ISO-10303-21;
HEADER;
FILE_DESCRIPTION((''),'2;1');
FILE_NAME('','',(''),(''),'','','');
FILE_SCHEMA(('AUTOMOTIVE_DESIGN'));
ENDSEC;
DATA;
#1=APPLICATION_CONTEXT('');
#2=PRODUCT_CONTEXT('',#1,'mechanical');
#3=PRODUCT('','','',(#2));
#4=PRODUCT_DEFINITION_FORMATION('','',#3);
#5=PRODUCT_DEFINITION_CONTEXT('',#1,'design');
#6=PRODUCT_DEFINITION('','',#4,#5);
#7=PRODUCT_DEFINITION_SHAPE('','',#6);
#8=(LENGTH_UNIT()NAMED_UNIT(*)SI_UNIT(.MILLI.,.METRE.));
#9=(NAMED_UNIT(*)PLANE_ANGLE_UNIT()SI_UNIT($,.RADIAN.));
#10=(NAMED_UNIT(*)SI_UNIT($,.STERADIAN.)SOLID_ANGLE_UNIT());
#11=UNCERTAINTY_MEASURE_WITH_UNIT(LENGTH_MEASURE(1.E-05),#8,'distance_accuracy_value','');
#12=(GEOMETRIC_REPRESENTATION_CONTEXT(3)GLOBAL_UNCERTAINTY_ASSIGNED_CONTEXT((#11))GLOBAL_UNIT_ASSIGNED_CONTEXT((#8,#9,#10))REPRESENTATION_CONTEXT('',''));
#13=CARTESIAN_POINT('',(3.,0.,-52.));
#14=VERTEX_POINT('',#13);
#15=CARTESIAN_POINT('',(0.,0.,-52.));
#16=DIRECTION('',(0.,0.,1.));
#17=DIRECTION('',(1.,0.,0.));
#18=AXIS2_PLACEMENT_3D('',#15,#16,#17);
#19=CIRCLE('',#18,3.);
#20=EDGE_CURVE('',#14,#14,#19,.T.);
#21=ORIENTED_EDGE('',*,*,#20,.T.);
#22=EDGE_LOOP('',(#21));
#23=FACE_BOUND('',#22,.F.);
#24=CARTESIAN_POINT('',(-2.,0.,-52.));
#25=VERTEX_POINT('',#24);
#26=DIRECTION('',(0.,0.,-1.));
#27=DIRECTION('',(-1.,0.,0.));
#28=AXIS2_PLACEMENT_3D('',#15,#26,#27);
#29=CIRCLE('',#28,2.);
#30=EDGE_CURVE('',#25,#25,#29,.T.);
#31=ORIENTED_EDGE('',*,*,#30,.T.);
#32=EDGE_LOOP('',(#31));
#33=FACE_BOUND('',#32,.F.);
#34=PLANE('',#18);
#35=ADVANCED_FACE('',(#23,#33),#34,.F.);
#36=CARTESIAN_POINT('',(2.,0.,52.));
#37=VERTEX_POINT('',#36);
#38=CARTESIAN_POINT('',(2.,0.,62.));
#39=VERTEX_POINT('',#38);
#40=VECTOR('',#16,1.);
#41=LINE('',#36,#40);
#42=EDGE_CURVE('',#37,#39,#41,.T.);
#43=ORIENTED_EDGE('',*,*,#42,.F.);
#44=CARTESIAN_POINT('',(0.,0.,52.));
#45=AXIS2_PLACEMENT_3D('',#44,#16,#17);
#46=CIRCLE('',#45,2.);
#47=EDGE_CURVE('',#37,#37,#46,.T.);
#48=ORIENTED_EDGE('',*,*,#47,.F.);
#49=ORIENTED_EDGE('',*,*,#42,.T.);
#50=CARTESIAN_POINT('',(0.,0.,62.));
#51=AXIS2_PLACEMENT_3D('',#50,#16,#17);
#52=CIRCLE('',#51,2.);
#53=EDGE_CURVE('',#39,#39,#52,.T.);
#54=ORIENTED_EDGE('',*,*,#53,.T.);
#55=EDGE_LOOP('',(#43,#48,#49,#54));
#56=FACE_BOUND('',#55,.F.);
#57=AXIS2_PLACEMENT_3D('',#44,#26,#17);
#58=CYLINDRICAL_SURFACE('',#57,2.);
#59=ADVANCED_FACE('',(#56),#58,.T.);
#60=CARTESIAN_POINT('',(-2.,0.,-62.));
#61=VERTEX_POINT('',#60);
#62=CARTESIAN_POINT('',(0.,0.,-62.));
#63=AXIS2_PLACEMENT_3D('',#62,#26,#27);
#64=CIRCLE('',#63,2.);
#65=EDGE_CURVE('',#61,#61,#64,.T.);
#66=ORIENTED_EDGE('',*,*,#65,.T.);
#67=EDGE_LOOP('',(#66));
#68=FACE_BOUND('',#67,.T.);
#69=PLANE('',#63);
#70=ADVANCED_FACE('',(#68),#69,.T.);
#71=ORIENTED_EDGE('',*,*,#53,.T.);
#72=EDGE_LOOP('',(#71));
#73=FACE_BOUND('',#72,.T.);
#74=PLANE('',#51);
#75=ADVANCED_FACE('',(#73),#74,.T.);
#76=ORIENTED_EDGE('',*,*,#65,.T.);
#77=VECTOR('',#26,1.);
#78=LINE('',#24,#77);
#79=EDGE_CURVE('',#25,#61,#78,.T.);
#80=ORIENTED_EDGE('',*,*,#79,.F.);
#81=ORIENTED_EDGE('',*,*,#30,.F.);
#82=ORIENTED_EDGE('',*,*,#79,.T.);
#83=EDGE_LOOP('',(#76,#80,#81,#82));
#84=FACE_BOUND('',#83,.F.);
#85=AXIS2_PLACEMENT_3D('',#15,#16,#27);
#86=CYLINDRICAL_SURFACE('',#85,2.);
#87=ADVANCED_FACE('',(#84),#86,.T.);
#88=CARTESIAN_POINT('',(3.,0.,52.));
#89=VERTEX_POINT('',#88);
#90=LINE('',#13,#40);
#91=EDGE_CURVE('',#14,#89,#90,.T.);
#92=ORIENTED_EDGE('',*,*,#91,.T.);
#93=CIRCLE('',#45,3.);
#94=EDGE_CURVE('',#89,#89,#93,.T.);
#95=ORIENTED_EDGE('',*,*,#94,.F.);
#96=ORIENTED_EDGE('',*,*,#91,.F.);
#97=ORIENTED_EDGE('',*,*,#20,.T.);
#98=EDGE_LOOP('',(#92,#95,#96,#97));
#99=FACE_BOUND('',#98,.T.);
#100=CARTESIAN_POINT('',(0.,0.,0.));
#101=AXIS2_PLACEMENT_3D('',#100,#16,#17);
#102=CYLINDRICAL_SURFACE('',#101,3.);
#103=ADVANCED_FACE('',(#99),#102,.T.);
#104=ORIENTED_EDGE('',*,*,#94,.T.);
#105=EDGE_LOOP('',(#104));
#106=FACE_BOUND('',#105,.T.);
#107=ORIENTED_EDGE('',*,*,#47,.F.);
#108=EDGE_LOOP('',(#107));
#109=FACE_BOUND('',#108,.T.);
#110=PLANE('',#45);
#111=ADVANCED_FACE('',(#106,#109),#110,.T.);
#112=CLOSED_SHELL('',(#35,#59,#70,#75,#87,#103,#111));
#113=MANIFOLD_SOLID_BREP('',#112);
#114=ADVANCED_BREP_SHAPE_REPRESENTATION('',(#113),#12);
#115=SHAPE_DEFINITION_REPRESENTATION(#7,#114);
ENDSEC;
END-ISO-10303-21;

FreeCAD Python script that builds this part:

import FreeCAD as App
import Part
import Sketcher
from FreeCAD import Vector
Q = App.Units.Quantity

doc = App.newDocument("Part")
body = doc.addObject("PartDesign::Body", "Body")

# Sketch on XY plane
sketch1 = body.newObject("Sketcher::SketchObject", "Sketch")
sketch1.AttachmentSupport = (doc.getObject("XY_Plane"), [""])
sketch1.MapMode = "FlatFace"
sketch1.addGeometry(Part.Circle(Vector(0, 0, 0), Vector(0, 0, 1), 3), False)
sketch1.addConstraint([
    Sketcher.Constraint("Coincident", 0, 3, -1, 1),
    Sketcher.Constraint("Diameter", 0, Q("6 mm")),
])
pad1 = body.newObject("PartDesign::Pad", "Pad")
pad1.Profile = sketch1
pad1.Length = 104
pad1.Midplane = True

# Sketch on XY plane
sketch2 = body.newObject("Sketcher::SketchObject", "Sketch001")
sketch2.AttachmentSupport = (doc.getObject("XY_Plane"), [""])
sketch2.MapMode = "FlatFace"
sketch2.AttachmentOffset = App.Placement(Vector(0, 0, 52), App.Rotation())
sketch2.addGeometry(Part.Circle(Vector(0, 0, 0), Vector(0, 0, 1), 2), False)
sketch2.addConstraint([
    Sketcher.Constraint("Coincident", 0, 3, -1, 1),
    Sketcher.Constraint("Diameter", 0, Q("4 mm")),
])
pad2 = body.newObject("PartDesign::Pad", "Pad001")
pad2.Profile = sketch2
pad2.Length = 10

# Sketch on XY plane
sketch3 = body.newObject("Sketcher::SketchObject", "Sketch002")
sketch3.AttachmentSupport = (doc.getObject("XY_Plane"), [""])
sketch3.MapMode = "FlatFace"
sketch3.AttachmentOffset = App.Placement(Vector(0, 0, -52), App.Rotation())
sketch3.addGeometry(Part.Circle(Vector(0, 0, 0), Vector(0, 0, 1), 2), False)
sketch3.addConstraint([
    Sketcher.Constraint("Coincident", 0, 3, -1, 1),
    Sketcher.Constraint("Diameter", 0, Q("4 mm")),
])
pad3 = body.newObject("PartDesign::Pad", "Pad002")
pad3.Profile = sketch3
pad3.Length = 10
pad3.Reversed = True

doc.recompute()
